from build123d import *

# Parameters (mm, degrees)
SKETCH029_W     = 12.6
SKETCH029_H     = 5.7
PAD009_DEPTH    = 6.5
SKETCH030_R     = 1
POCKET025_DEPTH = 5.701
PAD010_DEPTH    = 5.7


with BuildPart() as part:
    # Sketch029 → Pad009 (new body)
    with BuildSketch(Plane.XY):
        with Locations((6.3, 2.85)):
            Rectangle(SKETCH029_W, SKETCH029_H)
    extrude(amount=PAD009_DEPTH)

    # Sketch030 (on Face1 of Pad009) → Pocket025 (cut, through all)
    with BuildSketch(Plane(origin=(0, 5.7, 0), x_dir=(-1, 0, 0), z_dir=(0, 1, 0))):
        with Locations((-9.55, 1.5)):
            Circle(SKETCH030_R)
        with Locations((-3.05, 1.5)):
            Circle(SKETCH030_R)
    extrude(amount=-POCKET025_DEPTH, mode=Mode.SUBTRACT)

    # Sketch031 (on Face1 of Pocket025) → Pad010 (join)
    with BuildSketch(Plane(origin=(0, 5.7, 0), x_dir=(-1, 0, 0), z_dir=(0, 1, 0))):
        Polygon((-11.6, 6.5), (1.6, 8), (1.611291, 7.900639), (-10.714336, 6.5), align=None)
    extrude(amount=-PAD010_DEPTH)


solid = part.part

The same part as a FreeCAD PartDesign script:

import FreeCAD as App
import Part
import Sketcher

V = App.Vector

doc = App.newDocument("Part")
params = doc.addObject("Spreadsheet::Sheet", "Params")
for row, (alias, value) in enumerate([
    ("sketch1_width", "12.6 mm"),
    ("sketch1_height", "5.7 mm"),
    ("pad1_length", "6.5 mm"),
    ("sketch2_diameter", "2 mm"),
    ("sketch3_length", "0.1 mm"),
    ("pad2_length", "5.7 mm"),
], start=1):
    params.set(f"A{row}", alias)
    params.set(f"B{row}", "=" + value)
    params.setAlias(f"B{row}", alias)

body = doc.addObject("PartDesign::Body", "Body")

sketch1 = body.newObject("Sketcher::SketchObject", "Sketch")
sketch1.AttachmentSupport = (doc.getObject("XY_Plane"), [""])
sketch1.MapMode = "FlatFace"
sketch1.addGeometry([
    Part.LineSegment(V(0, 5.7, 0), V(0, 0, 0)),
    Part.LineSegment(V(0, 0, 0), V(12.6, 0, 0)),
    Part.LineSegment(V(12.6, 0, 0), V(12.6, 5.7, 0)),
    Part.LineSegment(V(12.6, 5.7, 0), V(0, 5.7, 0)),
], False)
sketch1.addConstraint([
    Sketcher.Constraint("Coincident", 0, 2, 1, 1),
    Sketcher.Constraint("Coincident", 1, 2, 2, 1),
    Sketcher.Constraint("Coincident", 2, 2, 3, 1),
    Sketcher.Constraint("Coincident", 3, 2, 0, 1),
    Sketcher.Constraint("Vertical", 0),
    Sketcher.Constraint("Horizontal", 1),
    Sketcher.Constraint("Vertical", 2),
    Sketcher.Constraint("Horizontal", 3),
    Sketcher.Constraint("Coincident", 0, 2, -1, 1),
    Sketcher.Constraint("DistanceX", 1, 1, 1, 2, 12.6),
    Sketcher.Constraint("DistanceY", 0, 2, 0, 1, 5.7),
])
sketch1.setExpression("Constraints[9]", "Params.sketch1_width")
sketch1.setExpression("Constraints[10]", "Params.sketch1_height")
pad1 = body.newObject("PartDesign::Pad", "Pad")
pad1.Profile = sketch1
pad1.setExpression("Length", "Params.pad1_length")

sketch2 = body.newObject("Sketcher::SketchObject", "Sketch001")
sketch2.AttachmentSupport = (doc.getObject("XZ_Plane"), [""])
sketch2.MapMode = "FlatFace"
sketch2.AttachmentOffset = App.Placement(V(0, 0, -5.7), App.Rotation())
sketch2.addGeometry([
    Part.Circle(V(9.55, 1.5, 0), V(0, 0, 1), 1),
    Part.Circle(V(3.05, 1.5, 0), V(0, 0, 1), 1),
], False)
sketch2.addConstraint([
    Sketcher.Constraint("Equal", 0, 1),
    Sketcher.Constraint("Horizontal", 0, 3, 1, 3),
    Sketcher.Constraint("Diameter", 0, 2.0),
    Sketcher.Constraint("DistanceY", -1, 1, 0, 3, 1.5),
    Sketcher.Constraint("DistanceX", 1, 3, 0, 3, 6.5),
    Sketcher.Constraint("DistanceX", -1, 1, 0, 3, 9.55),
])
sketch2.setExpression("Constraints[2]", "Params.sketch2_diameter")
pocket1 = body.newObject("PartDesign::Pocket", "Pocket")
pocket1.Profile = sketch2
pocket1.Type = "ThroughAll"
pocket1.Reversed = True

sketch3 = body.newObject("Sketcher::SketchObject", "Sketch002")
sketch3.AttachmentSupport = (doc.getObject("XZ_Plane"), [""])
sketch3.MapMode = "FlatFace"
sketch3.AttachmentOffset = App.Placement(V(0, 0, -5.7), App.Rotation())
sketch3.addGeometry([
    Part.LineSegment(V(-1.6, 8, 0), V(11.6, 6.5, 0)),
    Part.LineSegment(V(11.6, 6.5, 0), V(10.714336, 6.5, 0)),
    Part.LineSegment(V(10.714336, 6.5, 0), V(-1.611291, 7.900639, 0)),
    Part.LineSegment(V(-1.611291, 7.900639, 0), V(-1.6, 8, 0)),
], False)
sketch3.addConstraint([
    Sketcher.Constraint("Coincident", 0, 2, 1, 1),
    Sketcher.Constraint("Coincident", 1, 2, 2, 1),
    Sketcher.Constraint("Coincident", 2, 2, 3, 1),
    Sketcher.Constraint("Coincident", 3, 2, 0, 1),
    Sketcher.Constraint("Horizontal", 1),
    Sketcher.Constraint("Parallel", 0, 2),
    Sketcher.Constraint("Perpendicular", 2, 3),
    Sketcher.Constraint("DistanceY", -1, 1, 3, 2, 8.0),
    Sketcher.Constraint("Distance", 3, 0.1),
    Sketcher.Constraint("DistanceX", -1, 1, 0, 2, 11.6),
    Sketcher.Constraint("DistanceY", -1, 1, 0, 2, 6.5),
    Sketcher.Constraint("DistanceX", 3, 2, -1, 1, 1.6),
])
sketch3.setExpression("Constraints[8]", "Params.sketch3_length")
pad2 = body.newObject("PartDesign::Pad", "Pad001")
pad2.Profile = sketch3
pad2.setExpression("Length", "Params.pad2_length")

doc.recompute()
